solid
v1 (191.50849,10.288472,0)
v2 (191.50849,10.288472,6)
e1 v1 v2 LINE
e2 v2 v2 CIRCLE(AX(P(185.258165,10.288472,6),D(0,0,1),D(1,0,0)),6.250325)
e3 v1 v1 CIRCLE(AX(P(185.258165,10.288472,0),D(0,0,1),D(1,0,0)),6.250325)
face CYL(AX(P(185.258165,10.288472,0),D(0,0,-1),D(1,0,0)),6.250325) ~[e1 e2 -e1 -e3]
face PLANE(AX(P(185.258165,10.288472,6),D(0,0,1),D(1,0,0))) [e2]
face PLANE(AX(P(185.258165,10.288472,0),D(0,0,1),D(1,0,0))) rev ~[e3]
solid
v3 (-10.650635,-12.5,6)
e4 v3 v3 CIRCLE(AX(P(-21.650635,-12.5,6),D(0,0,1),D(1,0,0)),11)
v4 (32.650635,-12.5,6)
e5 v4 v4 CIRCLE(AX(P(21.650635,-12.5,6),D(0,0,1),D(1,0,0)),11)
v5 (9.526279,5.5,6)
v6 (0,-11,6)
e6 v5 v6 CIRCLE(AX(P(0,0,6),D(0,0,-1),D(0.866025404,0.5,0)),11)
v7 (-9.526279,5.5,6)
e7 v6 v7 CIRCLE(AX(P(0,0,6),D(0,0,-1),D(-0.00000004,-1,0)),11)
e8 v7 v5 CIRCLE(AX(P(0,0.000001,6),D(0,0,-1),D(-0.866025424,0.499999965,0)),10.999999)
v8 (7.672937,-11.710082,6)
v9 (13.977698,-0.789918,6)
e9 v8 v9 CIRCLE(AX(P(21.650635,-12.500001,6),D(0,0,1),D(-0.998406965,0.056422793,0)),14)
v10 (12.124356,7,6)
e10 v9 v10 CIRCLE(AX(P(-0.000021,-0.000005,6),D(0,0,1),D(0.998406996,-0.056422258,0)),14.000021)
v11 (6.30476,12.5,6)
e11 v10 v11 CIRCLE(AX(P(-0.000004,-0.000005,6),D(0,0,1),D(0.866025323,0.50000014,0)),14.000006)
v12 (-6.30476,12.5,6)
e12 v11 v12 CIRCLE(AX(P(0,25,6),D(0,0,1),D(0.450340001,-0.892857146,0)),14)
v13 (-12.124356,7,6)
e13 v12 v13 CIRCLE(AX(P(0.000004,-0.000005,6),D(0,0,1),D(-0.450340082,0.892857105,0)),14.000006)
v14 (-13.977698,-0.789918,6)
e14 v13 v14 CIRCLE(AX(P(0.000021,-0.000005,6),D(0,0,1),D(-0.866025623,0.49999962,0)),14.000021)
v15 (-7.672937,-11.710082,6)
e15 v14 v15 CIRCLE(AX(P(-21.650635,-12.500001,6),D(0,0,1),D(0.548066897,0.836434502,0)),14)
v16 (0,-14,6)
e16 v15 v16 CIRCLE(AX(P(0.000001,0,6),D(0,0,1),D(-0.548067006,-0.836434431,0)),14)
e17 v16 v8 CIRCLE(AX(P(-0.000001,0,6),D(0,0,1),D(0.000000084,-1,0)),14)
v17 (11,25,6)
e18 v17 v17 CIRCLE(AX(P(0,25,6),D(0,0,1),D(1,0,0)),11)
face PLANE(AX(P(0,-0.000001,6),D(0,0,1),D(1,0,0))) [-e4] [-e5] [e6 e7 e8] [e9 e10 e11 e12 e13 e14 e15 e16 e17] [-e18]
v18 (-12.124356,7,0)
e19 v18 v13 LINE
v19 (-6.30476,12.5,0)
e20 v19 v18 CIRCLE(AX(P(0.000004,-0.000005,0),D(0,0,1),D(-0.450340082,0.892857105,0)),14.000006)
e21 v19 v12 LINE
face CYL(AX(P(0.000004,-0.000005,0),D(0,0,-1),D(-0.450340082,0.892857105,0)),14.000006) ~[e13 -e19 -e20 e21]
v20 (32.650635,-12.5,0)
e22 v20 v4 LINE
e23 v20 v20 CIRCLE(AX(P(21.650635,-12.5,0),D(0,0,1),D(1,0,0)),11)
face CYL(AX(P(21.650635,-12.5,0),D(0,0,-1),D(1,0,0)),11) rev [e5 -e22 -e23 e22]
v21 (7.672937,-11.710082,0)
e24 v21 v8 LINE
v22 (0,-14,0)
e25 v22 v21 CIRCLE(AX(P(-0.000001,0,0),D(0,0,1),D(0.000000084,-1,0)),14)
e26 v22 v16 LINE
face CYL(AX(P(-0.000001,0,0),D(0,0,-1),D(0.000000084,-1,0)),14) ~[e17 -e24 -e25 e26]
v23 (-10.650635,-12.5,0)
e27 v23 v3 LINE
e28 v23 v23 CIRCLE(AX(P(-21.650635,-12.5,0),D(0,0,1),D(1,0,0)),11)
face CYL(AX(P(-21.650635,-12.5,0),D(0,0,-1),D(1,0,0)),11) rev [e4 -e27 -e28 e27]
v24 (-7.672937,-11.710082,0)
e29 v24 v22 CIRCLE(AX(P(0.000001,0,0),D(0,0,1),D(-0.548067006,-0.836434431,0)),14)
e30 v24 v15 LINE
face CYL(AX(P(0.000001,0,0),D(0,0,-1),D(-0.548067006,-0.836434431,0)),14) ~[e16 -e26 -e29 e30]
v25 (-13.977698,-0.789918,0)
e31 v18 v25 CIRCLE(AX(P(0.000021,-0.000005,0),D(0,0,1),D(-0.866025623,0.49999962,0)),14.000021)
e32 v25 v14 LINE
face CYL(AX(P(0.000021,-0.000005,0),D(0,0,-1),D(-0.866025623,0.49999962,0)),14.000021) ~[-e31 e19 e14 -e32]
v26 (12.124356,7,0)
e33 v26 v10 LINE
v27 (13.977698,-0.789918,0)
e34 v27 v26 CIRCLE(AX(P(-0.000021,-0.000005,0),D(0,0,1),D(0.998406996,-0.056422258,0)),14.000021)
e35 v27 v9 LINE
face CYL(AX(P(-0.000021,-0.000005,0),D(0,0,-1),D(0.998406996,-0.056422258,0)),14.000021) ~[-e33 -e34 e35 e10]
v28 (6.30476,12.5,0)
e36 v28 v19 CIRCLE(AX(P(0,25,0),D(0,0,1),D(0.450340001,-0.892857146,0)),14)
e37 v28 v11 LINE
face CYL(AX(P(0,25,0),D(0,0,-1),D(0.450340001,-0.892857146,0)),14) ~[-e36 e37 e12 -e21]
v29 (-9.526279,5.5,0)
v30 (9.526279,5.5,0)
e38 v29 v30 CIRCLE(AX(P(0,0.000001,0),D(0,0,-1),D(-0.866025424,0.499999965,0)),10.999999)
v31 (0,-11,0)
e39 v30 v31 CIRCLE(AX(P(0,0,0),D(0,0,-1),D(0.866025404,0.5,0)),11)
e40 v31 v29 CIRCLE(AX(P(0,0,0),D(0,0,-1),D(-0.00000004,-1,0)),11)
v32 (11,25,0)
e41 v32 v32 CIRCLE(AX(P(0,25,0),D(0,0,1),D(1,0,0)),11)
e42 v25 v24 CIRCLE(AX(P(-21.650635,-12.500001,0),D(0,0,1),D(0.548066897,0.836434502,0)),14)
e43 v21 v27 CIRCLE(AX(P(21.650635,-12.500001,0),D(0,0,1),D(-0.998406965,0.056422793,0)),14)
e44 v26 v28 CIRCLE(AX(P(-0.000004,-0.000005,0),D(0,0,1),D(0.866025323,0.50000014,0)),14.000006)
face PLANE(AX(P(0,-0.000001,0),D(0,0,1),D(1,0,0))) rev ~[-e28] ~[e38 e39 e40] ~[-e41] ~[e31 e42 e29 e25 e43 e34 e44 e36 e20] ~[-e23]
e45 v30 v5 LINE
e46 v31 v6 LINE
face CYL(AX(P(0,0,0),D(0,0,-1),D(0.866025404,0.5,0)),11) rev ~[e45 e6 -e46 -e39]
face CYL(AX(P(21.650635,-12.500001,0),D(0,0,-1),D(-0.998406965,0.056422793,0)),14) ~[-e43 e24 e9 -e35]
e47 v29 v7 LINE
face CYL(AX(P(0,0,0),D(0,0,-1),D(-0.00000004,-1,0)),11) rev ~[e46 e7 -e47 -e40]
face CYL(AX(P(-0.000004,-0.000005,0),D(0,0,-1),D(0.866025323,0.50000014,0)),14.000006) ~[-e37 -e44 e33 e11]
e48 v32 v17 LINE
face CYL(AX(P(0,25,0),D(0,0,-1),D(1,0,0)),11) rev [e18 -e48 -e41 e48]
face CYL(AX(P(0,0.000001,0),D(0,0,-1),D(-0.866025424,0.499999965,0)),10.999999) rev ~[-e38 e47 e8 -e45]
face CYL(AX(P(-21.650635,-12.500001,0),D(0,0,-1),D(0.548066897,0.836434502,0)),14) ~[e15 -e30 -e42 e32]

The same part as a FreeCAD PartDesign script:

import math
import FreeCAD as App
import Part
import Sketcher

V = App.Vector

doc = App.newDocument("Part")
body = doc.addObject("PartDesign::Body", "Body")
body.AllowCompound = True

# Sketch on XY plane
sketch1 = body.newObject("Sketcher::SketchObject", "Sketch")
sketch1.AttachmentSupport = (doc.getObject("XY_Plane"), [""])
sketch1.MapMode = "FlatFace"
sketch1.addGeometry(Part.Circle(V(185.258165, 10.288472, 0), V(0, 0, 1), 6.250325), False)
sketch1.addGeometry(Part.ArcOfCircle(Part.Circle(V(0, 25, 0), V(0, 0, 1), 14), math.radians(-63.2345), math.radians(243.2345)), False)
sketch1.addGeometry(Part.ArcOfCircle(Part.Circle(V(0.000004, -0.000005, 0), V(0, 0, 1), 14.000006), math.radians(116.765505), math.radians(149.999991)), False)
sketch1.addGeometry(Part.ArcOfCircle(Part.Circle(V(0.000021, -0.000005, 0), V(0, 0, 1), 14.000021), math.radians(150.000025), math.radians(183.234475)), False)
sketch1.addGeometry(Part.ArcOfCircle(Part.Circle(V(-21.650635, -12.500001, 0), V(0, 0, 1), 14), math.radians(56.765505), math.radians(363.234506)), False)
sketch1.addGeometry(Part.ArcOfCircle(Part.Circle(V(0.000001, 0, 0), V(0, 0, 1), 14), math.radians(-123.234502), math.radians(-90.000005)), False)
sketch1.addGeometry(Part.ArcOfCircle(Part.Circle(V(-0.000001, 0, 0), V(0, 0, 1), 14), math.radians(-89.999995), math.radians(-56.765498)), False)
sketch1.addGeometry(Part.ArcOfCircle(Part.Circle(V(21.650635, -12.500001, 0), V(0, 0, 1), 14), math.radians(176.765494), math.radians(483.234495)), False)
sketch1.addGeometry(Part.ArcOfCircle(Part.Circle(V(-0.000021, -0.000005, 0), V(0, 0, 1), 14.000021), math.radians(-3.234475), math.radians(29.999975)), False)
sketch1.addGeometry(Part.ArcOfCircle(Part.Circle(V(-0.000004, -0.000005, 0), V(0, 0, 1), 14.000006), math.radians(30.000009), math.radians(63.234495)), False)
sketch1.addGeometry(Part.Circle(V(-21.650635, -12.5, 0), V(0, 0, 1), 11), False)
sketch1.addGeometry(Part.Circle(V(21.650635, -12.5, 0), V(0, 0, 1), 11), False)
sketch1.addGeometry(Part.ArcOfCircle(Part.Circle(V(0, 0, 0), V(0, 0, 1), 11), math.radians(150), math.radians(269.999998)), False)
sketch1.addGeometry(Part.ArcOfCircle(Part.Circle(V(0, 0.000001, 0), V(0, 0, 1), 10.999999), math.radians(29.999998), math.radians(150.000002)), False)
sketch1.addGeometry(Part.ArcOfCircle(Part.Circle(V(0, 0, 0), V(0, 0, 1), 11), math.radians(-89.999998), math.radians(30)), False)
sketch1.addGeometry(Part.Circle(V(0, 25, 0), V(0, 0, 1), 11), False)
sketch1.addConstraint(Sketcher.Constraint("Coincident", 1, 2, 2, 1))
sketch1.addConstraint(Sketcher.Constraint("Coincident", 2, 2, 3, 1))
sketch1.addConstraint(Sketcher.Constraint("Coincident", 3, 2, 4, 1))
sketch1.addConstraint(Sketcher.Constraint("Coincident", 4, 2, 5, 1))
sketch1.addConstraint(Sketcher.Constraint("Coincident", 5, 2, 6, 1))
sketch1.addConstraint(Sketcher.Constraint("Coincident", 6, 2, 7, 1))
sketch1.addConstraint(Sketcher.Constraint("Coincident", 7, 2, 8, 1))
sketch1.addConstraint(Sketcher.Constraint("Coincident", 8, 2, 9, 1))
sketch1.addConstraint(Sketcher.Constraint("Coincident", 9, 2, 1, 1))
sketch1.addConstraint(Sketcher.Constraint("Coincident", 12, 1, 13, 2))
sketch1.addConstraint(Sketcher.Constraint("Coincident", 13, 1, 14, 2))
sketch1.addConstraint(Sketcher.Constraint("Coincident", 14, 1, 12, 2))
sketch1.addConstraint(Sketcher.Constraint("Coincident", 2, 3, -1, 1))
sketch1.addConstraint(Sketcher.Constraint("Coincident", 5, 3, -1, 1))
sketch1.addConstraint(Sketcher.Constraint("Coincident", 6, 3, -1, 1))
sketch1.addConstraint(Sketcher.Constraint("Coincident", 9, 3, -1, 1))
sketch1.addConstraint(Sketcher.Constraint("Coincident", 12, 3, -1, 1))
sketch1.addConstraint(Sketcher.Constraint("Coincident", 13, 3, -1, 1))
sketch1.addConstraint(Sketcher.Constraint("Coincident", 10, 3, 4, 3))
sketch1.addConstraint(Sketcher.Constraint("Coincident", 11, 3, 7, 3))
sketch1.addConstraint(Sketcher.Constraint("Coincident", 15, 3, 1, 3))
sketch1.addConstraint(Sketcher.Constraint("PointOnObject", 1, 3, -2))
sketch1.addConstraint(Sketcher.Constraint("PointOnObject", 5, 2, -2))
sketch1.addConstraint(Sketcher.Constraint("PointOnObject", 14, 1, -2))
sketch1.addConstraint(Sketcher.Constraint("Diameter", 10, 22.0))
sketch1.addConstraint(Sketcher.Constraint("Diameter", 11, 22.0))
sketch1.addConstraint(Sketcher.Constraint("Diameter", 15, 22.0))
sketch1.addConstraint(Sketcher.Constraint("Radius", 1, 14.0))
sketch1.addConstraint(Sketcher.Constraint("Radius", 4, 14.0))
sketch1.addConstraint(Sketcher.Constraint("Radius", 5, 14.0))
sketch1.addConstraint(Sketcher.Constraint("Radius", 7, 14.0))
sketch1.addConstraint(Sketcher.Constraint("Radius", 12, 11.0))
sketch1.addConstraint(Sketcher.Constraint("Radius", 14, 11.0))
sketch1.addConstraint(Sketcher.Constraint("DistanceY", -1, 1, 1, 3, 25.0))
sketch1.addConstraint(Sketcher.Constraint("DistanceY", -1, 1, 2, 2, 7.0))
sketch1.addConstraint(Sketcher.Constraint("DistanceY", -1, 1, 8, 2, 7.0))
sketch1.addConstraint(Sketcher.Constraint("DistanceY", 12, 1, 1, 2, 7.0))
sketch1.addConstraint(Sketcher.Constraint("DistanceY", 13, 1, 9, 2, 7.0))
sketch1.addConstraint(Sketcher.Constraint("DistanceY", 4, 3, -1, 1, 12.500001))
sketch1.addConstraint(Sketcher.Constraint("DistanceY", 7, 3, -1, 1, 12.500001))
sketch1.addConstraint(Sketcher.Constraint("DistanceY", -1, 1, 1, 2, 12.5))
sketch1.addConstraint(Sketcher.Constraint("DistanceY", -1, 1, 9, 2, 12.5))
sketch1.addConstraint(Sketcher.Constraint("Diameter", 0, 12.50065))
sketch1.addConstraint(Sketcher.Constraint("Radius", 3, 14.000021))
sketch1.addConstraint(Sketcher.Constraint("Radius", 8, 14.000021))
sketch1.addConstraint(Sketcher.Constraint("DistanceX", 3, 2, -1, 1, 13.977698))
sketch1.addConstraint(Sketcher.Constraint("DistanceX", 4, 3, 0, 3, 206.9088))
sketch1.addConstraint(Sketcher.Constraint("DistanceY", 3, 2, -1, 1, 0.789918))
sketch1.addConstraint(Sketcher.Constraint("DistanceY", 0, 3, 1, 3, 14.711528))
sketch1.addConstraint(Sketcher.Constraint("DistanceX", 2, 3, 7, 3, 21.650631))
sketch1.addConstraint(Sketcher.Constraint("DistanceX", 1, 2, 8, 3, 6.304739))
pad1 = body.newObject("PartDesign::Pad", "Pad")
pad1.Profile = sketch1
pad1.Length = 6

doc.recompute()
